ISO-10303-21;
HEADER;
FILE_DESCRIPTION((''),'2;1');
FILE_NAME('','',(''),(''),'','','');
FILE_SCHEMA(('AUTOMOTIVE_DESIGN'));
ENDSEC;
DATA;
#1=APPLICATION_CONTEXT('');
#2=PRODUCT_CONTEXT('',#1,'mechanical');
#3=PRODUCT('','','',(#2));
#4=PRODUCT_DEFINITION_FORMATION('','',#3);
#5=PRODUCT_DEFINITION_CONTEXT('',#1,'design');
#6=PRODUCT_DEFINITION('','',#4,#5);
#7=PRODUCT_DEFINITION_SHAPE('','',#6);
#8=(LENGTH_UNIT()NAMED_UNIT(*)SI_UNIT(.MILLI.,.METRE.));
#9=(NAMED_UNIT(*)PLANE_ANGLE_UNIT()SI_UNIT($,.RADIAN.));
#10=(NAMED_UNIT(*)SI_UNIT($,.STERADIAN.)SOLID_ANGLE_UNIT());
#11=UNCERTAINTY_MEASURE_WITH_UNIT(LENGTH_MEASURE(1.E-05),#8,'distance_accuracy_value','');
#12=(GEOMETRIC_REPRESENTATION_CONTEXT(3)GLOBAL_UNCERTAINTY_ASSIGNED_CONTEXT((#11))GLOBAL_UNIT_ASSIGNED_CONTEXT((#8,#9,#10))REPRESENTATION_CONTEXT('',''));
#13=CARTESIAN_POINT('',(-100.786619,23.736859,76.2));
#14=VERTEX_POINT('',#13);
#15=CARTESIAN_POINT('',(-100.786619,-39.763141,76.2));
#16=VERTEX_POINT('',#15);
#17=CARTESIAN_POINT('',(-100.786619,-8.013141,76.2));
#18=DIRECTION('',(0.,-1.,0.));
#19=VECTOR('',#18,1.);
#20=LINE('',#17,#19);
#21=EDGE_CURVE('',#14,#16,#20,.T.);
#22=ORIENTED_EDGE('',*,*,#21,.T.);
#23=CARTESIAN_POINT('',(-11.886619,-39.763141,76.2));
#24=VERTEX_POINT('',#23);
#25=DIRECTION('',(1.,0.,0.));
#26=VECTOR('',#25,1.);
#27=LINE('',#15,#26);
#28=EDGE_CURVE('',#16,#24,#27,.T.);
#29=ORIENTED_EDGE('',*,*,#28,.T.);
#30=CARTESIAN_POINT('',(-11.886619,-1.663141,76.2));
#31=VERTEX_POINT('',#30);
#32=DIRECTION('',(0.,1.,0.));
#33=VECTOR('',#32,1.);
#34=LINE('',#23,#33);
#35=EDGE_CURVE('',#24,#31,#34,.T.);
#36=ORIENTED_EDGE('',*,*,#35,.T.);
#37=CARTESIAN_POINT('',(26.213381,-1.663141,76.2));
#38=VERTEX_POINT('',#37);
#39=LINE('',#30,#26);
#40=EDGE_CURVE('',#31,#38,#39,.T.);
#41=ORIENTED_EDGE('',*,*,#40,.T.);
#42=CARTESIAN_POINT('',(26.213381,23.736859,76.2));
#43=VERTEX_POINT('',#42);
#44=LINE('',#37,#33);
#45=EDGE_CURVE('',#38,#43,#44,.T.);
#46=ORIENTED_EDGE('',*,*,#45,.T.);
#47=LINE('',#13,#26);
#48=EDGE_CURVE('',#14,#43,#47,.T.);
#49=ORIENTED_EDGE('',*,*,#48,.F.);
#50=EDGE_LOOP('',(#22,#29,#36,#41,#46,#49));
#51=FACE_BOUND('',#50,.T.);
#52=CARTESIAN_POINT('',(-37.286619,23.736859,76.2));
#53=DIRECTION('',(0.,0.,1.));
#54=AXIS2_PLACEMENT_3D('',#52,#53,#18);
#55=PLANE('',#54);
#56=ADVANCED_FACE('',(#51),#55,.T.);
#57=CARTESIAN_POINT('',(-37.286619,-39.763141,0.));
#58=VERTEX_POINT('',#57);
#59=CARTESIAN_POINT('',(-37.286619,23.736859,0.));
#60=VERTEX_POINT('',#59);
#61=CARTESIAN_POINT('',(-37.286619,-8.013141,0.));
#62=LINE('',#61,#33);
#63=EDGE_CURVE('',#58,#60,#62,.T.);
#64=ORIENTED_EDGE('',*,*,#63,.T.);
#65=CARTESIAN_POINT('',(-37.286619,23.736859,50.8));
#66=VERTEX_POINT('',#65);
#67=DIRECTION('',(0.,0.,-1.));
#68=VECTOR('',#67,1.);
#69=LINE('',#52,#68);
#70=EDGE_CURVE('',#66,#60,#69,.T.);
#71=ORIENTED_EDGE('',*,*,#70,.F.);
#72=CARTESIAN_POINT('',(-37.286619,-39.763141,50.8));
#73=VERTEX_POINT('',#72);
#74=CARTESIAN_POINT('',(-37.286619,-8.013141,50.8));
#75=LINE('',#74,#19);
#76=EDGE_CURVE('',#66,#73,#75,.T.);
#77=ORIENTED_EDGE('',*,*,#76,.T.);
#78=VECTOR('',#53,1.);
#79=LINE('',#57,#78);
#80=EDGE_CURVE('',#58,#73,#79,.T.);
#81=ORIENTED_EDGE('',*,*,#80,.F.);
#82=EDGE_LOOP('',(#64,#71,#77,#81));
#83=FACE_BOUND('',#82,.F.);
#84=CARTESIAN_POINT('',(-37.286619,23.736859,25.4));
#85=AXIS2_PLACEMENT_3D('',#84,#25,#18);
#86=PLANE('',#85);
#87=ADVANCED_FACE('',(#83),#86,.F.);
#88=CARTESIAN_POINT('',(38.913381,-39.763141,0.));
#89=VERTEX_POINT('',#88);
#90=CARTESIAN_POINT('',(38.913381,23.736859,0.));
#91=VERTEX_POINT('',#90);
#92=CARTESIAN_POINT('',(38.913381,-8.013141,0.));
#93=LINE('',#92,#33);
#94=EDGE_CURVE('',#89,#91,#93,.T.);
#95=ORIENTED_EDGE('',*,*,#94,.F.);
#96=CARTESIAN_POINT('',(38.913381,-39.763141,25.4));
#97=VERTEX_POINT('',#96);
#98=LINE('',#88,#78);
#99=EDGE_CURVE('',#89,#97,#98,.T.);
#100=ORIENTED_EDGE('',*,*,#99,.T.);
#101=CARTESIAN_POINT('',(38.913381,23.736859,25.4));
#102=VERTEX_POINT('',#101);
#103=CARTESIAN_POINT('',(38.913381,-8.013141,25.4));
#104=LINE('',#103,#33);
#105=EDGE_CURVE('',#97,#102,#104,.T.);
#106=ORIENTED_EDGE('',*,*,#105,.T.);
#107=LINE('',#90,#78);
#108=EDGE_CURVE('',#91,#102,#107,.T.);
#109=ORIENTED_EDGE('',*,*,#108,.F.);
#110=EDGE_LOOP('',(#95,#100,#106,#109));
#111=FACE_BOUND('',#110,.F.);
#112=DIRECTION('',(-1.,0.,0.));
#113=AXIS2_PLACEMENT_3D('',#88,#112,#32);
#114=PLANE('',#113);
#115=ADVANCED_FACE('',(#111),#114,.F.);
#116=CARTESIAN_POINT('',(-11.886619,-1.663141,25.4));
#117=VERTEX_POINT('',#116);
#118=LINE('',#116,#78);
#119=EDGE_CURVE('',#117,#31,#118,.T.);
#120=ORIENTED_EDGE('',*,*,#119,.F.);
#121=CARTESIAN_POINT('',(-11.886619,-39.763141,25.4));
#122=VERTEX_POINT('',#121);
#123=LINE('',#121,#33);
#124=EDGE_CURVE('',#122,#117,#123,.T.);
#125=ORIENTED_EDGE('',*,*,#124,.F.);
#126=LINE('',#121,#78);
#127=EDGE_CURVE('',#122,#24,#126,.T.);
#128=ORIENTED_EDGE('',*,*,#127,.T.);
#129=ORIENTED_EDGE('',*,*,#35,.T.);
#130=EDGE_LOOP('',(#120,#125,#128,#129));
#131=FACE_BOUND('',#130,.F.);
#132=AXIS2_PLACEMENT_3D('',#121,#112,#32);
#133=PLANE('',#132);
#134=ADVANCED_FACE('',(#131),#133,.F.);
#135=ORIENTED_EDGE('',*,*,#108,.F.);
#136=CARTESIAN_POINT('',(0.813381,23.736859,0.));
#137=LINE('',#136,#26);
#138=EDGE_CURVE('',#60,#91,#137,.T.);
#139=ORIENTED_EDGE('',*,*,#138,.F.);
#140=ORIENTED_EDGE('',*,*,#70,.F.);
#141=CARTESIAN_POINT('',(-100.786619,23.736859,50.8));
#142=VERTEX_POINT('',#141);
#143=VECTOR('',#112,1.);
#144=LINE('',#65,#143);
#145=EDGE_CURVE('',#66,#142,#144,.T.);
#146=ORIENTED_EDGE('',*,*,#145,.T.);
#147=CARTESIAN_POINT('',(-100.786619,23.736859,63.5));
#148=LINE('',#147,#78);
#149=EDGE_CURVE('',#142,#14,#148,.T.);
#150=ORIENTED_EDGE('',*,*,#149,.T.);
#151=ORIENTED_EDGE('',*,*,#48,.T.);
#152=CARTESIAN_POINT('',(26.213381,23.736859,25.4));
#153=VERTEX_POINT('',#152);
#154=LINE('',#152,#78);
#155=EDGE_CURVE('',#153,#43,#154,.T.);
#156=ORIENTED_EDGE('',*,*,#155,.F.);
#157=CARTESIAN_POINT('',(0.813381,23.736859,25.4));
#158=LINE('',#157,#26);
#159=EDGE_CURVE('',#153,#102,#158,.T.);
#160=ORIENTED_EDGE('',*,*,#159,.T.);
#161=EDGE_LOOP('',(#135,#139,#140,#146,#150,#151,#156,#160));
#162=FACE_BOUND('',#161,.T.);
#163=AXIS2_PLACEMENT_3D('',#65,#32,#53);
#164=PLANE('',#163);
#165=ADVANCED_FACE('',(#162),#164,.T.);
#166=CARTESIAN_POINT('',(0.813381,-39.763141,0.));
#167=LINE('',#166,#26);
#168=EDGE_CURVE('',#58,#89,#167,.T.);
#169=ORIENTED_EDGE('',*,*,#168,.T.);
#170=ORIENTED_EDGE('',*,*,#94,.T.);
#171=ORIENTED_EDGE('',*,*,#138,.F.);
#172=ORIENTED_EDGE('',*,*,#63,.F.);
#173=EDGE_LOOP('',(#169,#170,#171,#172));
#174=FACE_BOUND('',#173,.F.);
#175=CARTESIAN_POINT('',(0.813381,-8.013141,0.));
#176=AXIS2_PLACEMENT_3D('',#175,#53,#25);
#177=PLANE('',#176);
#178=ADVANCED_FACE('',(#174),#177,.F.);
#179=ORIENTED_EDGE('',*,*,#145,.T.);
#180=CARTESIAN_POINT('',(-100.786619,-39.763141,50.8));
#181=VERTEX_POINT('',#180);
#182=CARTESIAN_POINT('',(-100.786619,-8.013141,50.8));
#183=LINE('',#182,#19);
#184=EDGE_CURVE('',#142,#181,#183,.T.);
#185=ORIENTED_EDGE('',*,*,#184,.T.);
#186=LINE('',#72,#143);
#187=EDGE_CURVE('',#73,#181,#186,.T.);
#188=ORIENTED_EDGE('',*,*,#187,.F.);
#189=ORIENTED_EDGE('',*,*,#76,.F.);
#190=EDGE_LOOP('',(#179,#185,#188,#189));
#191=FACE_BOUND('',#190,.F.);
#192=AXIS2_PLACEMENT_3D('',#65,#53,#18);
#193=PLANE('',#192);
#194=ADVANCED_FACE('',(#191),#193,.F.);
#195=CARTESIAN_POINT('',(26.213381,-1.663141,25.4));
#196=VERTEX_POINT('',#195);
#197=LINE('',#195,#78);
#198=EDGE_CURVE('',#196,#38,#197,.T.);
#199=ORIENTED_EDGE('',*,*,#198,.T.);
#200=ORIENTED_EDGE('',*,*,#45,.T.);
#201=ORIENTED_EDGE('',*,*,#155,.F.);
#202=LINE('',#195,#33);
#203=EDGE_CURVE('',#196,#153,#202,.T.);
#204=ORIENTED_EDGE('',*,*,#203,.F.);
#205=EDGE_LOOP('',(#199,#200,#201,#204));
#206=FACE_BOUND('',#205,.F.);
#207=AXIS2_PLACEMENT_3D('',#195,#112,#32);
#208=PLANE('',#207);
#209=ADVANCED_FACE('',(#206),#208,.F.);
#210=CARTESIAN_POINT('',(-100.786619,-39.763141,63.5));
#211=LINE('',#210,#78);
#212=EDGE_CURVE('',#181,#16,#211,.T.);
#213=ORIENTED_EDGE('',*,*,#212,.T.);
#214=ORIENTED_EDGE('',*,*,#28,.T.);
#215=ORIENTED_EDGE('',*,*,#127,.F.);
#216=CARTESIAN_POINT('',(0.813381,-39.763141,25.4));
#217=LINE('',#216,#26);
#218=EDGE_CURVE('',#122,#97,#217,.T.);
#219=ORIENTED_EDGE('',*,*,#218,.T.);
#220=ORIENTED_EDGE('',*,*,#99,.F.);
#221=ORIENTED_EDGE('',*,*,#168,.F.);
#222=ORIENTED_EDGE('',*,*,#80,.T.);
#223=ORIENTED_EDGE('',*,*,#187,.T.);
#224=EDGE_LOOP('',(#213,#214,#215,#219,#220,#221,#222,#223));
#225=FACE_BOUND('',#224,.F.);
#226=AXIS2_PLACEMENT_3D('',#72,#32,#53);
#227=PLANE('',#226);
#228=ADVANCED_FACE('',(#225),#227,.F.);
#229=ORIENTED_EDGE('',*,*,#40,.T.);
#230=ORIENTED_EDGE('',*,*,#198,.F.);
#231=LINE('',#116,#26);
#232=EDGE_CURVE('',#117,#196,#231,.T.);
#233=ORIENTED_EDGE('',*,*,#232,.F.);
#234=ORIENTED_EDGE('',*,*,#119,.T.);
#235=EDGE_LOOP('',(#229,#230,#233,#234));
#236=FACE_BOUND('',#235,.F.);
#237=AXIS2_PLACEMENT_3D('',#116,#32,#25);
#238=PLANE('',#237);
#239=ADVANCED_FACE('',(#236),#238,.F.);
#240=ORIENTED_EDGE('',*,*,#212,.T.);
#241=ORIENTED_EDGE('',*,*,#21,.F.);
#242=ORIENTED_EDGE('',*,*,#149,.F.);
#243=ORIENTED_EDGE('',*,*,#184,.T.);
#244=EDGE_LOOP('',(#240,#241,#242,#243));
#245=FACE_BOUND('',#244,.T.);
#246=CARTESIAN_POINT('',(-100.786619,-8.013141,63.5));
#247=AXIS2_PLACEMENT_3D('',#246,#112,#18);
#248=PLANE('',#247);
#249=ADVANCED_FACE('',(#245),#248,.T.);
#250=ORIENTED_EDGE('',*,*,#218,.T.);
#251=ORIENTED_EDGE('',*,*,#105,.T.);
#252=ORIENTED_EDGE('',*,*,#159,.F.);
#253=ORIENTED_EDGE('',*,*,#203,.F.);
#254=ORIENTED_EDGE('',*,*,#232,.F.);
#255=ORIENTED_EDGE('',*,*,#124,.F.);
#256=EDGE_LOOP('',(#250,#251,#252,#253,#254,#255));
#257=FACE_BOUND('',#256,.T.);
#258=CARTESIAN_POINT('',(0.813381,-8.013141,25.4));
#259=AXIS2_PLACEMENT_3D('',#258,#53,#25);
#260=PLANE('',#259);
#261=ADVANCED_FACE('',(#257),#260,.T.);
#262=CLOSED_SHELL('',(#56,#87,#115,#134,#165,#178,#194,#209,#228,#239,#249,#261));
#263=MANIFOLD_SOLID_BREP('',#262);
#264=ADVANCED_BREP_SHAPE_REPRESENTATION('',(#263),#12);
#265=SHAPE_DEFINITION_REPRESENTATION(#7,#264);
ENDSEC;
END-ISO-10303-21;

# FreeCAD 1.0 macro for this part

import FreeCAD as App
import Part
import Sketcher

V = App.Vector
Q = App.Units.Quantity

doc = App.newDocument("Part")
body = doc.addObject("PartDesign::Body", "Body")

sketch1 = doc.addObject("Sketcher::SketchObject", "Sketch")
body.addObject(sketch1)
sketch1.AttachmentSupport = (doc.XY_Plane, [""])
sketch1.MapMode = "FlatFace"
sketch1.addGeometry(Part.LineSegment(V(-37, 24, 0), V(-37, -40, 0)), False)
sketch1.addGeometry(Part.LineSegment(V(-37, -40, 0), V(39, -40, 0)), False)
sketch1.addGeometry(Part.LineSegment(V(39, -40, 0), V(39, 24, 0)), False)
sketch1.addGeometry(Part.LineSegment(V(39, 24, 0), V(-37, 24, 0)), False)
sketch1.addConstraint(Sketcher.Constraint("Coincident", 0, 2, 1, 1))
sketch1.addConstraint(Sketcher.Constraint("Coincident", 1, 2, 2, 1))
sketch1.addConstraint(Sketcher.Constraint("Coincident", 2, 2, 3, 1))
sketch1.addConstraint(Sketcher.Constraint("Coincident", 3, 2, 0, 1))
sketch1.addConstraint(Sketcher.Constraint("Vertical", 0))
sketch1.addConstraint(Sketcher.Constraint("Horizontal", 1))
sketch1.addConstraint(Sketcher.Constraint("Vertical", 2))
sketch1.addConstraint(Sketcher.Constraint("Horizontal", 3))
sketch1.addConstraint(Sketcher.Constraint("DistanceX", 1, 1, 1, 2, Q("3 in")))
sketch1.addConstraint(Sketcher.Constraint("DistanceY", 0, 2, 0, 1, Q("2.5 in")))
sketch1.addConstraint(Sketcher.Constraint("DistanceX", 0, 2, -1, 1, Q("37.286619 mm")))
sketch1.addConstraint(Sketcher.Constraint("DistanceY", 0, 2, -1, 1, Q("39.763141 mm")))
pad1 = doc.addObject("PartDesign::Pad", "Pad")
body.addObject(pad1)
pad1.Profile = sketch1
pad1.Length = Q("1 in")

sketch2 = doc.addObject("Sketcher::SketchObject", "Sketch001")
body.addObject(sketch2)
sketch2.AttachmentSupport = (doc.XY_Plane, [""])
sketch2.MapMode = "FlatFace"
sketch2.AttachmentOffset = App.Placement(V(0, 0, 1 * 25.4), App.Rotation())
sketch2.addGeometry(Part.LineSegment(V(-37, 24, 0), V(-37, -40, 0)), False)
sketch2.addGeometry(Part.LineSegment(V(-37, -40, 0), V(-12, -40, 0)), False)
sketch2.addGeometry(Part.LineSegment(V(-12, -40, 0), V(-12, -2, 0)), False)
sketch2.addGeometry(Part.LineSegment(V(-12, -2, 0), V(26, -2, 0)), False)
sketch2.addGeometry(Part.LineSegment(V(26, -2, 0), V(26, 24, 0)), False)
sketch2.addGeometry(Part.LineSegment(V(26, 24, 0), V(-37, 24, 0)), False)
sketch2.addConstraint(Sketcher.Constraint("Coincident", 0, 2, 1, 1))
sketch2.addConstraint(Sketcher.Constraint("Coincident", 1, 2, 2, 1))
sketch2.addConstraint(Sketcher.Constraint("Coincident", 2, 2, 3, 1))
sketch2.addConstraint(Sketcher.Constraint("Coincident", 3, 2, 4, 1))
sketch2.addConstraint(Sketcher.Constraint("Coincident", 4, 2, 5, 1))
sketch2.addConstraint(Sketcher.Constraint("Coincident", 5, 2, 0, 1))
sketch2.addConstraint(Sketcher.Constraint("Vertical", 0))
sketch2.addConstraint(Sketcher.Constraint("Horizontal", 1))
sketch2.addConstraint(Sketcher.Constraint("Vertical", 2))
sketch2.addConstraint(Sketcher.Constraint("Horizontal", 3))
sketch2.addConstraint(Sketcher.Constraint("Vertical", 4))
sketch2.addConstraint(Sketcher.Constraint("Horizontal", 5))
sketch2.addConstraint(Sketcher.Constraint("Equal", 5, 0))
sketch2.addConstraint(Sketcher.Constraint("Equal", 3, 2))
sketch2.addConstraint(Sketcher.Constraint("DistanceX", 1, 1, 1, 2, Q("1 in")))
sketch2.addConstraint(Sketcher.Constraint("DistanceX", 3, 1, 3, 2, Q("1.5 in")))
sketch2.addConstraint(Sketcher.Constraint("DistanceX", 0, 2, -1, 1, Q("37.286619 mm")))
sketch2.addConstraint(Sketcher.Constraint("DistanceY", 0, 2, -1, 1, Q("39.763141 mm")))
pad2 = doc.addObject("PartDesign::Pad", "Pad001")
body.addObject(pad2)
pad2.Profile = sketch2
pad2.Length = Q("2 in")

sketch3 = doc.addObject("Sketcher::SketchObject", "Sketch002")
body.addObject(sketch3)
sketch3.AttachmentSupport = (doc.YZ_Plane, [""])
sketch3.MapMode = "FlatFace"
sketch3.AttachmentOffset = App.Placement(V(0, 0, -37.286619), App.Rotation())
sketch3.addGeometry(Part.LineSegment(V(24, 76, 0), V(24, 51, 0)), False)
sketch3.addGeometry(Part.LineSegment(V(24, 51, 0), V(-40, 51, 0)), False)
sketch3.addGeometry(Part.LineSegment(V(-40, 51, 0), V(-40, 76, 0)), False)
sketch3.addGeometry(Part.LineSegment(V(-40, 76, 0), V(24, 76, 0)), False)
sketch3.addConstraint(Sketcher.Constraint("Coincident", 0, 2, 1, 1))
sketch3.addConstraint(Sketcher.Constraint("Coincident", 1, 2, 2, 1))
sketch3.addConstraint(Sketcher.Constraint("Coincident", 2, 2, 3, 1))
sketch3.addConstraint(Sketcher.Constraint("Coincident", 3, 2, 0, 1))
sketch3.addConstraint(Sketcher.Constraint("Vertical", 0))
sketch3.addConstraint(Sketcher.Constraint("Horizontal", 1))
sketch3.addConstraint(Sketcher.Constraint("Vertical", 2))
sketch3.addConstraint(Sketcher.Constraint("Horizontal", 3))
sketch3.addConstraint(Sketcher.Constraint("DistanceY", 0, 2, 0, 1, Q("1 in")))
sketch3.addConstraint(Sketcher.Constraint("DistanceX", 1, 2, 1, 1, Q("2.5 in")))
sketch3.addConstraint(Sketcher.Constraint("DistanceY", -1, 1, 0, 2, Q("2 in")))
sketch3.addConstraint(Sketcher.Constraint("DistanceX", -1, 1, 0, 2, Q("23.736859 mm")))
pad3 = doc.addObject("PartDesign::Pad", "Pad002")
body.addObject(pad3)
pad3.Profile = sketch3
pad3.Length = Q("2.5 in")
pad3.Reversed = True

doc.recompute()
